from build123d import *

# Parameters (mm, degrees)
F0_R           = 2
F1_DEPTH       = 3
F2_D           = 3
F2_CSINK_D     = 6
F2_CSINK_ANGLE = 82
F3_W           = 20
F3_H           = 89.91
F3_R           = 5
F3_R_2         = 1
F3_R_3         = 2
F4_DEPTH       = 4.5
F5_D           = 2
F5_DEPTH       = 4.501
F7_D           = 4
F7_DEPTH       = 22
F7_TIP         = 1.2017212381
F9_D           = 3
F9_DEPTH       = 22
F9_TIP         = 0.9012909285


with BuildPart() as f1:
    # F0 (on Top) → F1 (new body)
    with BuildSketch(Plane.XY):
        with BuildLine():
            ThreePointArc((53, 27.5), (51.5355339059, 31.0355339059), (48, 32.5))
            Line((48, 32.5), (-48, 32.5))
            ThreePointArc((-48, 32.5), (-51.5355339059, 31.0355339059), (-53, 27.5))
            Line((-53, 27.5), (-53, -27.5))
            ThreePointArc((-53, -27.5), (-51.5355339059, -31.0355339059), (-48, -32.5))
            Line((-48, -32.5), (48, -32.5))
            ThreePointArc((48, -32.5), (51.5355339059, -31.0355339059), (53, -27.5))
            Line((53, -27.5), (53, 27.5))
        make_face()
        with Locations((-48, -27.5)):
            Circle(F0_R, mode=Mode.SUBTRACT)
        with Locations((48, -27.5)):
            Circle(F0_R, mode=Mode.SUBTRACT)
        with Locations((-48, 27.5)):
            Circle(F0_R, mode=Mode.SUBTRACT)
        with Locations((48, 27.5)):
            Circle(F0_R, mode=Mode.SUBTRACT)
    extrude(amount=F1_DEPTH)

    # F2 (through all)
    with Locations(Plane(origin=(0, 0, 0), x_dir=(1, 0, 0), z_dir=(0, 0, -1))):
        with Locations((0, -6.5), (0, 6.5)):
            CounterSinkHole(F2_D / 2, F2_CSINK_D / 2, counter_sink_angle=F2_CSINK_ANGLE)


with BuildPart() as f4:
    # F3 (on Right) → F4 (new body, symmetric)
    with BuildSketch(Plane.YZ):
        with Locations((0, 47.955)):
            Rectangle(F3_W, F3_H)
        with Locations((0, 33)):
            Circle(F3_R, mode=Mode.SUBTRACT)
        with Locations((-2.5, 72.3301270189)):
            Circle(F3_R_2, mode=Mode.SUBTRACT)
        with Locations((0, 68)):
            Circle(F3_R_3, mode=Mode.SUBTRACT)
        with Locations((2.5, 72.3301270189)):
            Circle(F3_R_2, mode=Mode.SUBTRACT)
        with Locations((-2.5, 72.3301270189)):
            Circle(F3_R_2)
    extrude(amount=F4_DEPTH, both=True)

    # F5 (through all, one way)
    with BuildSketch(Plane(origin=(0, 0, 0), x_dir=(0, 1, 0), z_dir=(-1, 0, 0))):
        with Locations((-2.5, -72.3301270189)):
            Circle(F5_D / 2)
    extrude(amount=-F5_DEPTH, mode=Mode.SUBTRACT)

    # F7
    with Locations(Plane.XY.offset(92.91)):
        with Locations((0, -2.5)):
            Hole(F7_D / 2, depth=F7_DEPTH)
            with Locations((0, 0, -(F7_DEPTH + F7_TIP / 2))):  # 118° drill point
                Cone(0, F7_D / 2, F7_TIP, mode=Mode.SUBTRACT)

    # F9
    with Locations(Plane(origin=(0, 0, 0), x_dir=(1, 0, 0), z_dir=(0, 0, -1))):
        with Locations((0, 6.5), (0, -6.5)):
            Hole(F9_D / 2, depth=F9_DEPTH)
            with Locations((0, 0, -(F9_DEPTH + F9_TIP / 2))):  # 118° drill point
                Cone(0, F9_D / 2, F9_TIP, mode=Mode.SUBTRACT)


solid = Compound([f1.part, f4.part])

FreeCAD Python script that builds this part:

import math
import FreeCAD as App
import Part
import Sketcher
from FreeCAD import Vector
Q = App.Units.Quantity

doc = App.newDocument("Part")
params = doc.addObject("Spreadsheet::Sheet", "Params")
for row, (alias, value) in enumerate([
    ("sketch1_diameter", "4 mm"),
    ("sketch1_radius", "5 mm"),
    ("sketch1_width", "96 mm"),
    ("sketch1_height", "55 mm"),
    ("pad1_length", "3 mm"),
    ("sketch2_diameter", "3 mm"),
    ("hole_diameter", "3 mm"),
    ("hole_csink_diameter", "6 mm"),
    ("sketch3_diameter", "10 mm"),
    ("sketch3_diameter2", "4 mm"),
    ("sketch3_diameter3", "2 mm"),
    ("sketch3_width", "20 mm"),
    ("sketch3_height", "89.91 mm"),
    ("pad2_length", "9 mm"),
    ("sketch4_diameter", "2 mm"),
    ("sketch5_diameter", "4 mm"),
    ("hole2_diameter", "4 mm"),
    ("hole2_depth", "22 mm"),
    ("sketch6_diameter", "3 mm"),
    ("hole3_diameter", "3 mm"),
    ("hole3_depth", "22 mm"),
], start=1):
    params.set(f"A{row}", alias)
    params.set(f"B{row}", "=" + value)
    params.setAlias(f"B{row}", alias)

body = doc.addObject("PartDesign::Body", "Body")

# Sketch on XY plane
sketch1 = doc.addObject("Sketcher::SketchObject", "Sketch")
body.addObject(sketch1)
sketch1.AttachmentSupport = (doc.XY_Plane, [""])
sketch1.MapMode = "FlatFace"
sketch1.addGeometry([
    Part.ArcOfCircle(Part.Circle(Vector(48, 27.5, 0), Vector(0, 0, 1), 5), math.radians(0), math.radians(90)),  # 0
    Part.LineSegment(Vector(48, 32.5, 0), Vector(-48, 32.5, 0)),  # 1
    Part.ArcOfCircle(Part.Circle(Vector(-48, 27.5, 0), Vector(0, 0, 1), 5), math.radians(90), math.radians(180)),  # 2
    Part.LineSegment(Vector(-53, 27.5, 0), Vector(-53, -27.5, 0)),  # 3
    Part.ArcOfCircle(Part.Circle(Vector(-48, -27.5, 0), Vector(0, 0, 1), 5), math.radians(180), math.radians(270)),  # 4
    Part.LineSegment(Vector(-48, -32.5, 0), Vector(48, -32.5, 0)),  # 5
    Part.ArcOfCircle(Part.Circle(Vector(48, -27.5, 0), Vector(0, 0, 1), 5), math.radians(-90), math.radians(0)),  # 6
    Part.LineSegment(Vector(53, -27.5, 0), Vector(53, 27.5, 0)),  # 7
    Part.Circle(Vector(-48, -27.5, 0), Vector(0, 0, 1), 2),  # 8
    Part.Circle(Vector(48, -27.5, 0), Vector(0, 0, 1), 2),  # 9
    Part.Circle(Vector(-48, 27.5, 0), Vector(0, 0, 1), 2),  # 10
    Part.Circle(Vector(48, 27.5, 0), Vector(0, 0, 1), 2),  # 11
], False)
sketch1.addConstraint([
    Sketcher.Constraint("Tangent", 0, 2, 1, 1),
    Sketcher.Constraint("Tangent", 1, 2, 2, 1),
    Sketcher.Constraint("Tangent", 2, 2, 3, 1),
    Sketcher.Constraint("Tangent", 3, 2, 4, 1),
    Sketcher.Constraint("Tangent", 4, 2, 5, 1),
    Sketcher.Constraint("Tangent", 5, 2, 6, 1),
    Sketcher.Constraint("Tangent", 6, 2, 7, 1),
    Sketcher.Constraint("Tangent", 7, 2, 0, 1),
    Sketcher.Constraint("Horizontal", 1),
    Sketcher.Constraint("Vertical", 3),
    Sketcher.Constraint("Horizontal", 5),
    Sketcher.Constraint("Vertical", 7),
    Sketcher.Constraint("Coincident", 8, 3, 4, 3),
    Sketcher.Constraint("Coincident", 9, 3, 6, 3),
    Sketcher.Constraint("Coincident", 10, 3, 2, 3),
    Sketcher.Constraint("Coincident", 11, 3, 0, 3),
    Sketcher.Constraint("Equal", 0, 2),
    Sketcher.Constraint("Equal", 2, 4),
    Sketcher.Constraint("Equal", 4, 6),
    Sketcher.Constraint("Equal", 8, 9),
    Sketcher.Constraint("Equal", 9, 10),
    Sketcher.Constraint("Equal", 10, 11),
    Sketcher.Constraint("Symmetric", 0, 3, 4, 3, -1, 1),
    Sketcher.Constraint("Diameter", 8, Q("4 mm")),
    Sketcher.Constraint("Radius", 0, Q("5 mm")),
    Sketcher.Constraint("DistanceX", 1, 2, 1, 1, Q("96 mm")),
    Sketcher.Constraint("DistanceY", 3, 2, 3, 1, Q("55 mm")),
])
sketch1.setExpression("Constraints[23]", "Params.sketch1_diameter")
sketch1.setExpression("Constraints[24]", "Params.sketch1_radius")
sketch1.setExpression("Constraints[25]", "Params.sketch1_width")
sketch1.setExpression("Constraints[26]", "Params.sketch1_height")
pad1 = doc.addObject("PartDesign::Pad", "Pad")
body.addObject(pad1)
pad1.Profile = sketch1
pad1.setExpression("Length", "Params.pad1_length")

# Sketch on XY plane
sketch2 = doc.addObject("Sketcher::SketchObject", "Sketch001")
body.addObject(sketch2)
sketch2.AttachmentSupport = (doc.XY_Plane, [""])
sketch2.MapMode = "FlatFace"
sketch2.addGeometry([
    Part.Circle(Vector(0, 6.5, 0), Vector(0, 0, 1), 1.5),
    Part.Circle(Vector(0, -6.5, 0), Vector(0, 0, 1), 1.5),
], False)
sketch2.addConstraint([
    Sketcher.Constraint("Equal", 0, 1),
    Sketcher.Constraint("Symmetric", 0, 3, 1, 3, -1, 1),
    Sketcher.Constraint("PointOnObject", 0, 3, -2),
    Sketcher.Constraint("Diameter", 0, Q("3 mm")),
    Sketcher.Constraint("DistanceY", 1, 3, 0, 3, Q("13 mm")),
])
sketch2.setExpression("Constraints[3]", "Params.sketch2_diameter")
doc.recompute()
hole = doc.addObject("PartDesign::Hole", "Hole")
body.addObject(hole)
hole.Profile = sketch2
hole.ThreadType = "None"
hole.setExpression("Diameter", "Params.hole_diameter")
hole.DepthType = "ThroughAll"
hole.HoleCutType = "Countersink"
hole.setExpression("HoleCutDiameter", "Params.hole_csink_diameter")
hole.HoleCutCountersinkAngle = 82
hole.Reversed = True
body2 = doc.addObject("PartDesign::Body", "Body001")

# Sketch on YZ plane
sketch3 = doc.addObject("Sketcher::SketchObject", "Sketch002")
body2.addObject(sketch3)
sketch3.AttachmentSupport = (doc.getObject("YZ_Plane001"), [""])
sketch3.MapMode = "FlatFace"
sketch3.addGeometry([
    Part.LineSegment(Vector(-10, 92.9, 0), Vector(-10, 3, 0)),  # 0
    Part.LineSegment(Vector(-10, 3, 0), Vector(10, 3, 0)),  # 1
    Part.LineSegment(Vector(10, 3, 0), Vector(10, 92.9, 0)),  # 2
    Part.LineSegment(Vector(10, 92.9, 0), Vector(-10, 92.9, 0)),  # 3
    Part.Circle(Vector(0, 33, 0), Vector(0, 0, 1), 5),  # 4
    Part.Circle(Vector(0, 68, 0), Vector(0, 0, 1), 2),  # 5
    Part.Circle(Vector(2.5, 72.3, 0), Vector(0, 0, 1), 1),  # 6
], False)
sketch3.addConstraint([
    Sketcher.Constraint("Coincident", 0, 2, 1, 1),
    Sketcher.Constraint("Coincident", 1, 2, 2, 1),
    Sketcher.Constraint("Coincident", 2, 2, 3, 1),
    Sketcher.Constraint("Coincident", 3, 2, 0, 1),
    Sketcher.Constraint("Vertical", 0),
    Sketcher.Constraint("Horizontal", 1),
    Sketcher.Constraint("Vertical", 2),
    Sketcher.Constraint("Horizontal", 3),
    Sketcher.Constraint("PointOnObject", 4, 3, -2),
    Sketcher.Constraint("PointOnObject", 5, 3, -2),
    Sketcher.Constraint("Diameter", 4, Q("10 mm")),
    Sketcher.Constraint("Diameter", 5, Q("4 mm")),
    Sketcher.Constraint("Diameter", 6, Q("2 mm")),
    Sketcher.Constraint("DistanceX", 1, 1, 1, 2, Q("20 mm")),
    Sketcher.Constraint("DistanceY", -1, 1, 4, 3, Q("33 mm")),
    Sketcher.Constraint("DistanceY", -1, 1, 5, 3, Q("68 mm")),
    Sketcher.Constraint("DistanceX", 0, 2, -1, 1, Q("10 mm")),
    Sketcher.Constraint("DistanceY", -1, 1, 0, 2, Q("3 mm")),
    Sketcher.Constraint("DistanceY", 0, 2, 0, 1, Q("89.91 mm")),
    Sketcher.Constraint("DistanceX", -1, 1, 6, 3, Q("2.5 mm")),
    Sketcher.Constraint("DistanceY", -1, 1, 6, 3, Q("72.330127 mm")),
])
sketch3.setExpression("Constraints[10]", "Params.sketch3_diameter")
sketch3.setExpression("Constraints[11]", "Params.sketch3_diameter2")
sketch3.setExpression("Constraints[12]", "Params.sketch3_diameter3")
sketch3.setExpression("Constraints[13]", "Params.sketch3_width")
sketch3.setExpression("Constraints[18]", "Params.sketch3_height")
pad2 = doc.addObject("PartDesign::Pad", "Pad001")
body2.addObject(pad2)
pad2.Profile = sketch3
pad2.setExpression("Length", "Params.pad2_length")
pad2.Midplane = True

# Sketch on YZ plane
sketch4 = doc.addObject("Sketcher::SketchObject", "Sketch003")
body2.addObject(sketch4)
sketch4.AttachmentSupport = (doc.getObject("YZ_Plane001"), [""])
sketch4.MapMode = "FlatFace"
sketch4.addGeometry(Part.Circle(Vector(-2.5, 72.3, 0), Vector(0, 0, 1), 1), False)
sketch4.addConstraint([
    Sketcher.Constraint("Diameter", 0, Q("2 mm")),
    Sketcher.Constraint("DistanceX", 0, 3, -1, 1, Q("2.5 mm")),
    Sketcher.Constraint("DistanceY", -1, 1, 0, 3, Q("72.330127 mm")),
])
sketch4.setExpression("Constraints[0]", "Params.sketch4_diameter")
pocket1 = doc.addObject("PartDesign::Pocket", "Pocket")
body2.addObject(pocket1)
pocket1.Profile = sketch4
pocket1.Type = "ThroughAll"
pocket1.Reversed = True

# Sketch on XY plane
sketch5 = doc.addObject("Sketcher::SketchObject", "Sketch004")
body2.addObject(sketch5)
sketch5.AttachmentSupport = (doc.getObject("XY_Plane001"), [""])
sketch5.MapMode = "FlatFace"
sketch5.AttachmentOffset = App.Placement(Vector(0, 0, 92.91), App.Rotation())
sketch5.addGeometry(Part.Circle(Vector(0, -2.5, 0), Vector(0, 0, 1), 2), False)
sketch5.addConstraint([
    Sketcher.Constraint("PointOnObject", 0, 3, -2),
    Sketcher.Constraint("Diameter", 0, Q("4 mm")),
    Sketcher.Constraint("DistanceY", 0, 3, -1, 1, Q("2.5 mm")),
])
sketch5.setExpression("Constraints[1]", "Params.sketch5_diameter")
doc.recompute()
hole2 = doc.addObject("PartDesign::Hole", "Hole001")
body2.addObject(hole2)
hole2.Profile = sketch5
hole2.ThreadType = "None"
hole2.setExpression("Diameter", "Params.hole2_diameter")
hole2.DepthType = "Dimension"
hole2.setExpression("Depth", "Params.hole2_depth")
hole2.DrillPoint = "Angled"
hole2.DrillPointAngle = 118

# Sketch on XY plane
sketch6 = doc.addObject("Sketcher::SketchObject", "Sketch005")
body2.addObject(sketch6)
sketch6.AttachmentSupport = (doc.getObject("XY_Plane001"), [""])
sketch6.MapMode = "FlatFace"
sketch6.addGeometry([
    Part.Circle(Vector(0, -6.5, 0), Vector(0, 0, 1), 1.5),
    Part.Circle(Vector(0, 6.5, 0), Vector(0, 0, 1), 1.5),
], False)
sketch6.addConstraint([
    Sketcher.Constraint("Equal", 0, 1),
    Sketcher.Constraint("Symmetric", 0, 3, 1, 3, -1, 1),
    Sketcher.Constraint("PointOnObject", 0, 3, -2),
    Sketcher.Constraint("Diameter", 0, Q("3 mm")),
    Sketcher.Constraint("DistanceY", 0, 3, 1, 3, Q("13 mm")),
])
sketch6.setExpression("Constraints[3]", "Params.sketch6_diameter")
doc.recompute()
hole3 = doc.addObject("PartDesign::Hole", "Hole002")
body2.addObject(hole3)
hole3.Profile = sketch6
hole3.ThreadType = "None"
hole3.setExpression("Diameter", "Params.hole3_diameter")
hole3.DepthType = "Dimension"
hole3.setExpression("Depth", "Params.hole3_depth")
hole3.DrillPoint = "Angled"
hole3.DrillPointAngle = 118
hole3.Reversed = True

doc.recompute()
